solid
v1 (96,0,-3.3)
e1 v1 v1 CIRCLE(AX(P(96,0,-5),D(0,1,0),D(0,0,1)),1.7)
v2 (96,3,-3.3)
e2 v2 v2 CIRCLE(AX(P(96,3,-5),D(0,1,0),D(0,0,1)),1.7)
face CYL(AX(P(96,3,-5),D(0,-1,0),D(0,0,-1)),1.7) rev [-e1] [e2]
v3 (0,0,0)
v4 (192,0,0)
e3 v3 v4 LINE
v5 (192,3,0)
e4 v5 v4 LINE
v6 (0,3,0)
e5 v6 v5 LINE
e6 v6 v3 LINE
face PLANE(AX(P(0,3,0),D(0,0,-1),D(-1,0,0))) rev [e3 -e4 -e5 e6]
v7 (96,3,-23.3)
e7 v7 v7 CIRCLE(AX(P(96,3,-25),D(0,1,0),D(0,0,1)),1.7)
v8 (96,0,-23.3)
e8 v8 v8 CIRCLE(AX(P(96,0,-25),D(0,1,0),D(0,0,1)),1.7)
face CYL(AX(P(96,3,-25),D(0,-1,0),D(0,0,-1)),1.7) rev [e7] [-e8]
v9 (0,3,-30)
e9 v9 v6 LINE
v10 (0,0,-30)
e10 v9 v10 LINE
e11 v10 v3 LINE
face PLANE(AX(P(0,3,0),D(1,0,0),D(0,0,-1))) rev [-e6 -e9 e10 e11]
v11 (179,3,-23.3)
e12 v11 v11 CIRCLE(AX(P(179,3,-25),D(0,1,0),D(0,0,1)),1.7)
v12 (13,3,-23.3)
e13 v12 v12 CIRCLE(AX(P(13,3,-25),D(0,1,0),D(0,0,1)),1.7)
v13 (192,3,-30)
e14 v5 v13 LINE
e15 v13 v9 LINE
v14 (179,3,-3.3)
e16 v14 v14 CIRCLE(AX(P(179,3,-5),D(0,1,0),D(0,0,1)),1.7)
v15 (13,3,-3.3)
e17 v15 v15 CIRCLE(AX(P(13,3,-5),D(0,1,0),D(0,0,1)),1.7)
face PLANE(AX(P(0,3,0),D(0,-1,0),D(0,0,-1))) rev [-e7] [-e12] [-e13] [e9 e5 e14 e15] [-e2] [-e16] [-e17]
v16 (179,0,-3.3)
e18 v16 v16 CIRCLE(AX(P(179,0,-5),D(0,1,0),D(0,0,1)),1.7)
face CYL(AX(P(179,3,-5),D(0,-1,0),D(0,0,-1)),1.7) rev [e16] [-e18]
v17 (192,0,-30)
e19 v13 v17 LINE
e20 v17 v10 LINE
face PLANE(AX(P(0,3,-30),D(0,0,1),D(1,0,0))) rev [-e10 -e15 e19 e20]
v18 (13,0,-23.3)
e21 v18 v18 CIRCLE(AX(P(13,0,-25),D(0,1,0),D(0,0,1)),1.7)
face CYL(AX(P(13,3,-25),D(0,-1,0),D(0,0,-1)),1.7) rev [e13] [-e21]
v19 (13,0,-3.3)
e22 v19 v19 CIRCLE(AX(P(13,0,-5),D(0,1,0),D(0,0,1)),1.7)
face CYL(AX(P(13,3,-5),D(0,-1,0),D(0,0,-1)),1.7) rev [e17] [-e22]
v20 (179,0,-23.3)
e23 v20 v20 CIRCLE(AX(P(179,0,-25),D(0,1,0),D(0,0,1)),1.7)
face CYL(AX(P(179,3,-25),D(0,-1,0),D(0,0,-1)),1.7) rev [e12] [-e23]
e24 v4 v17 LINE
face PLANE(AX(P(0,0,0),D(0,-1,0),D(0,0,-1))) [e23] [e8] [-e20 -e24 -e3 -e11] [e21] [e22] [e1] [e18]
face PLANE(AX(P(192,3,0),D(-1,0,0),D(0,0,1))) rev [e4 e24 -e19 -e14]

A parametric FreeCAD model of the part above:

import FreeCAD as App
import Part
import Sketcher

V = App.Vector
Q = App.Units.Quantity


def add_polygon(sketch, points):
    """Adds a closed chain of lines whose ends are joined by coincident constraints."""
    first, n = sketch.GeometryCount, len(points)
    for a, b in zip(points, points[1:] + points[:1]):
        sketch.addGeometry(Part.LineSegment(App.Vector(*a, 0), App.Vector(*b, 0)), False)
    for i in range(n):
        sketch.addConstraint(Sketcher.Constraint("Coincident", first + i, 2, first + (i + 1) % n, 1))

doc = App.newDocument("Part")
params = doc.addObject("Spreadsheet::Sheet", "Params")
for row, (alias, value) in enumerate([
    ("sketch1_diameter", "3.4 mm"),
    ("sketch1_width", "192 mm"),
    ("sketch1_height", "30 mm"),
    ("pad1_length", "3 mm"),
], start=1):
    params.set(f"A{row}", alias)
    params.set(f"B{row}", "=" + value)
    params.setAlias(f"B{row}", alias)

body = doc.addObject("PartDesign::Body", "Body")

sketch1 = doc.addObject("Sketcher::SketchObject", "Sketch")
body.addObject(sketch1)
sketch1.AttachmentSupport = (doc.XZ_Plane, [""])
sketch1.MapMode = "FlatFace"
add_polygon(sketch1, [(0, -30), (0, 0), (192, 0), (192, -30)])
sketch1.addGeometry(Part.Circle(V(13, -5, 0), V(0, 0, 1), 1.7), False)
sketch1.addGeometry(Part.Circle(V(96, -5, 0), V(0, 0, 1), 1.7), False)
sketch1.addGeometry(Part.Circle(V(179, -5, 0), V(0, 0, 1), 1.7), False)
sketch1.addGeometry(Part.Circle(V(13, -25, 0), V(0, 0, 1), 1.7), False)
sketch1.addGeometry(Part.Circle(V(96, -25, 0), V(0, 0, 1), 1.7), False)
sketch1.addGeometry(Part.Circle(V(179, -25, 0), V(0, 0, 1), 1.7), False)
sketch1.addConstraint([
    Sketcher.Constraint("Vertical", 0),
    Sketcher.Constraint("Horizontal", 1),
    Sketcher.Constraint("Vertical", 2),
    Sketcher.Constraint("Horizontal", 3),
    Sketcher.Constraint("Coincident", 0, 2, -1, 1),
    Sketcher.Constraint("Equal", 4, 5),
    Sketcher.Constraint("Equal", 5, 6),
    Sketcher.Constraint("Equal", 6, 7),
    Sketcher.Constraint("Equal", 7, 8),
    Sketcher.Constraint("Equal", 8, 9),
    Sketcher.Constraint("Horizontal", 4, 3, 5, 3),
    Sketcher.Constraint("Horizontal", 5, 3, 6, 3),
    Sketcher.Constraint("Horizontal", 7, 3, 8, 3),
    Sketcher.Constraint("Horizontal", 8, 3, 9, 3),
    Sketcher.Constraint("Vertical", 4, 3, 7, 3),
    Sketcher.Constraint("Vertical", 5, 3, 8, 3),
    Sketcher.Constraint("Vertical", 6, 3, 9, 3),
    Sketcher.Constraint("Diameter", 4, Q("3.4 mm")),
    Sketcher.Constraint("DistanceX", 1, 1, 1, 2, Q("192 mm")),
    Sketcher.Constraint("DistanceY", 0, 1, 0, 2, Q("30 mm")),
    Sketcher.Constraint("DistanceX", -1, 1, 4, 3, Q("13 mm")),
    Sketcher.Constraint("DistanceY", 4, 3, -1, 1, Q("5 mm")),
    Sketcher.Constraint("DistanceX", -1, 1, 5, 3, Q("96 mm")),
    Sketcher.Constraint("DistanceX", -1, 1, 6, 3, Q("179 mm")),
    Sketcher.Constraint("DistanceY", 7, 3, -1, 1, Q("25 mm")),
])
sketch1.setExpression("Constraints[21]", "Params.sketch1_diameter")
sketch1.setExpression("Constraints[22]", "Params.sketch1_width")
sketch1.setExpression("Constraints[23]", "Params.sketch1_height")
pad1 = doc.addObject("PartDesign::Pad", "Pad")
body.addObject(pad1)
pad1.Profile = sketch1
pad1.setExpression("Length", "Params.pad1_length")
pad1.Reversed = True

doc.recompute()
